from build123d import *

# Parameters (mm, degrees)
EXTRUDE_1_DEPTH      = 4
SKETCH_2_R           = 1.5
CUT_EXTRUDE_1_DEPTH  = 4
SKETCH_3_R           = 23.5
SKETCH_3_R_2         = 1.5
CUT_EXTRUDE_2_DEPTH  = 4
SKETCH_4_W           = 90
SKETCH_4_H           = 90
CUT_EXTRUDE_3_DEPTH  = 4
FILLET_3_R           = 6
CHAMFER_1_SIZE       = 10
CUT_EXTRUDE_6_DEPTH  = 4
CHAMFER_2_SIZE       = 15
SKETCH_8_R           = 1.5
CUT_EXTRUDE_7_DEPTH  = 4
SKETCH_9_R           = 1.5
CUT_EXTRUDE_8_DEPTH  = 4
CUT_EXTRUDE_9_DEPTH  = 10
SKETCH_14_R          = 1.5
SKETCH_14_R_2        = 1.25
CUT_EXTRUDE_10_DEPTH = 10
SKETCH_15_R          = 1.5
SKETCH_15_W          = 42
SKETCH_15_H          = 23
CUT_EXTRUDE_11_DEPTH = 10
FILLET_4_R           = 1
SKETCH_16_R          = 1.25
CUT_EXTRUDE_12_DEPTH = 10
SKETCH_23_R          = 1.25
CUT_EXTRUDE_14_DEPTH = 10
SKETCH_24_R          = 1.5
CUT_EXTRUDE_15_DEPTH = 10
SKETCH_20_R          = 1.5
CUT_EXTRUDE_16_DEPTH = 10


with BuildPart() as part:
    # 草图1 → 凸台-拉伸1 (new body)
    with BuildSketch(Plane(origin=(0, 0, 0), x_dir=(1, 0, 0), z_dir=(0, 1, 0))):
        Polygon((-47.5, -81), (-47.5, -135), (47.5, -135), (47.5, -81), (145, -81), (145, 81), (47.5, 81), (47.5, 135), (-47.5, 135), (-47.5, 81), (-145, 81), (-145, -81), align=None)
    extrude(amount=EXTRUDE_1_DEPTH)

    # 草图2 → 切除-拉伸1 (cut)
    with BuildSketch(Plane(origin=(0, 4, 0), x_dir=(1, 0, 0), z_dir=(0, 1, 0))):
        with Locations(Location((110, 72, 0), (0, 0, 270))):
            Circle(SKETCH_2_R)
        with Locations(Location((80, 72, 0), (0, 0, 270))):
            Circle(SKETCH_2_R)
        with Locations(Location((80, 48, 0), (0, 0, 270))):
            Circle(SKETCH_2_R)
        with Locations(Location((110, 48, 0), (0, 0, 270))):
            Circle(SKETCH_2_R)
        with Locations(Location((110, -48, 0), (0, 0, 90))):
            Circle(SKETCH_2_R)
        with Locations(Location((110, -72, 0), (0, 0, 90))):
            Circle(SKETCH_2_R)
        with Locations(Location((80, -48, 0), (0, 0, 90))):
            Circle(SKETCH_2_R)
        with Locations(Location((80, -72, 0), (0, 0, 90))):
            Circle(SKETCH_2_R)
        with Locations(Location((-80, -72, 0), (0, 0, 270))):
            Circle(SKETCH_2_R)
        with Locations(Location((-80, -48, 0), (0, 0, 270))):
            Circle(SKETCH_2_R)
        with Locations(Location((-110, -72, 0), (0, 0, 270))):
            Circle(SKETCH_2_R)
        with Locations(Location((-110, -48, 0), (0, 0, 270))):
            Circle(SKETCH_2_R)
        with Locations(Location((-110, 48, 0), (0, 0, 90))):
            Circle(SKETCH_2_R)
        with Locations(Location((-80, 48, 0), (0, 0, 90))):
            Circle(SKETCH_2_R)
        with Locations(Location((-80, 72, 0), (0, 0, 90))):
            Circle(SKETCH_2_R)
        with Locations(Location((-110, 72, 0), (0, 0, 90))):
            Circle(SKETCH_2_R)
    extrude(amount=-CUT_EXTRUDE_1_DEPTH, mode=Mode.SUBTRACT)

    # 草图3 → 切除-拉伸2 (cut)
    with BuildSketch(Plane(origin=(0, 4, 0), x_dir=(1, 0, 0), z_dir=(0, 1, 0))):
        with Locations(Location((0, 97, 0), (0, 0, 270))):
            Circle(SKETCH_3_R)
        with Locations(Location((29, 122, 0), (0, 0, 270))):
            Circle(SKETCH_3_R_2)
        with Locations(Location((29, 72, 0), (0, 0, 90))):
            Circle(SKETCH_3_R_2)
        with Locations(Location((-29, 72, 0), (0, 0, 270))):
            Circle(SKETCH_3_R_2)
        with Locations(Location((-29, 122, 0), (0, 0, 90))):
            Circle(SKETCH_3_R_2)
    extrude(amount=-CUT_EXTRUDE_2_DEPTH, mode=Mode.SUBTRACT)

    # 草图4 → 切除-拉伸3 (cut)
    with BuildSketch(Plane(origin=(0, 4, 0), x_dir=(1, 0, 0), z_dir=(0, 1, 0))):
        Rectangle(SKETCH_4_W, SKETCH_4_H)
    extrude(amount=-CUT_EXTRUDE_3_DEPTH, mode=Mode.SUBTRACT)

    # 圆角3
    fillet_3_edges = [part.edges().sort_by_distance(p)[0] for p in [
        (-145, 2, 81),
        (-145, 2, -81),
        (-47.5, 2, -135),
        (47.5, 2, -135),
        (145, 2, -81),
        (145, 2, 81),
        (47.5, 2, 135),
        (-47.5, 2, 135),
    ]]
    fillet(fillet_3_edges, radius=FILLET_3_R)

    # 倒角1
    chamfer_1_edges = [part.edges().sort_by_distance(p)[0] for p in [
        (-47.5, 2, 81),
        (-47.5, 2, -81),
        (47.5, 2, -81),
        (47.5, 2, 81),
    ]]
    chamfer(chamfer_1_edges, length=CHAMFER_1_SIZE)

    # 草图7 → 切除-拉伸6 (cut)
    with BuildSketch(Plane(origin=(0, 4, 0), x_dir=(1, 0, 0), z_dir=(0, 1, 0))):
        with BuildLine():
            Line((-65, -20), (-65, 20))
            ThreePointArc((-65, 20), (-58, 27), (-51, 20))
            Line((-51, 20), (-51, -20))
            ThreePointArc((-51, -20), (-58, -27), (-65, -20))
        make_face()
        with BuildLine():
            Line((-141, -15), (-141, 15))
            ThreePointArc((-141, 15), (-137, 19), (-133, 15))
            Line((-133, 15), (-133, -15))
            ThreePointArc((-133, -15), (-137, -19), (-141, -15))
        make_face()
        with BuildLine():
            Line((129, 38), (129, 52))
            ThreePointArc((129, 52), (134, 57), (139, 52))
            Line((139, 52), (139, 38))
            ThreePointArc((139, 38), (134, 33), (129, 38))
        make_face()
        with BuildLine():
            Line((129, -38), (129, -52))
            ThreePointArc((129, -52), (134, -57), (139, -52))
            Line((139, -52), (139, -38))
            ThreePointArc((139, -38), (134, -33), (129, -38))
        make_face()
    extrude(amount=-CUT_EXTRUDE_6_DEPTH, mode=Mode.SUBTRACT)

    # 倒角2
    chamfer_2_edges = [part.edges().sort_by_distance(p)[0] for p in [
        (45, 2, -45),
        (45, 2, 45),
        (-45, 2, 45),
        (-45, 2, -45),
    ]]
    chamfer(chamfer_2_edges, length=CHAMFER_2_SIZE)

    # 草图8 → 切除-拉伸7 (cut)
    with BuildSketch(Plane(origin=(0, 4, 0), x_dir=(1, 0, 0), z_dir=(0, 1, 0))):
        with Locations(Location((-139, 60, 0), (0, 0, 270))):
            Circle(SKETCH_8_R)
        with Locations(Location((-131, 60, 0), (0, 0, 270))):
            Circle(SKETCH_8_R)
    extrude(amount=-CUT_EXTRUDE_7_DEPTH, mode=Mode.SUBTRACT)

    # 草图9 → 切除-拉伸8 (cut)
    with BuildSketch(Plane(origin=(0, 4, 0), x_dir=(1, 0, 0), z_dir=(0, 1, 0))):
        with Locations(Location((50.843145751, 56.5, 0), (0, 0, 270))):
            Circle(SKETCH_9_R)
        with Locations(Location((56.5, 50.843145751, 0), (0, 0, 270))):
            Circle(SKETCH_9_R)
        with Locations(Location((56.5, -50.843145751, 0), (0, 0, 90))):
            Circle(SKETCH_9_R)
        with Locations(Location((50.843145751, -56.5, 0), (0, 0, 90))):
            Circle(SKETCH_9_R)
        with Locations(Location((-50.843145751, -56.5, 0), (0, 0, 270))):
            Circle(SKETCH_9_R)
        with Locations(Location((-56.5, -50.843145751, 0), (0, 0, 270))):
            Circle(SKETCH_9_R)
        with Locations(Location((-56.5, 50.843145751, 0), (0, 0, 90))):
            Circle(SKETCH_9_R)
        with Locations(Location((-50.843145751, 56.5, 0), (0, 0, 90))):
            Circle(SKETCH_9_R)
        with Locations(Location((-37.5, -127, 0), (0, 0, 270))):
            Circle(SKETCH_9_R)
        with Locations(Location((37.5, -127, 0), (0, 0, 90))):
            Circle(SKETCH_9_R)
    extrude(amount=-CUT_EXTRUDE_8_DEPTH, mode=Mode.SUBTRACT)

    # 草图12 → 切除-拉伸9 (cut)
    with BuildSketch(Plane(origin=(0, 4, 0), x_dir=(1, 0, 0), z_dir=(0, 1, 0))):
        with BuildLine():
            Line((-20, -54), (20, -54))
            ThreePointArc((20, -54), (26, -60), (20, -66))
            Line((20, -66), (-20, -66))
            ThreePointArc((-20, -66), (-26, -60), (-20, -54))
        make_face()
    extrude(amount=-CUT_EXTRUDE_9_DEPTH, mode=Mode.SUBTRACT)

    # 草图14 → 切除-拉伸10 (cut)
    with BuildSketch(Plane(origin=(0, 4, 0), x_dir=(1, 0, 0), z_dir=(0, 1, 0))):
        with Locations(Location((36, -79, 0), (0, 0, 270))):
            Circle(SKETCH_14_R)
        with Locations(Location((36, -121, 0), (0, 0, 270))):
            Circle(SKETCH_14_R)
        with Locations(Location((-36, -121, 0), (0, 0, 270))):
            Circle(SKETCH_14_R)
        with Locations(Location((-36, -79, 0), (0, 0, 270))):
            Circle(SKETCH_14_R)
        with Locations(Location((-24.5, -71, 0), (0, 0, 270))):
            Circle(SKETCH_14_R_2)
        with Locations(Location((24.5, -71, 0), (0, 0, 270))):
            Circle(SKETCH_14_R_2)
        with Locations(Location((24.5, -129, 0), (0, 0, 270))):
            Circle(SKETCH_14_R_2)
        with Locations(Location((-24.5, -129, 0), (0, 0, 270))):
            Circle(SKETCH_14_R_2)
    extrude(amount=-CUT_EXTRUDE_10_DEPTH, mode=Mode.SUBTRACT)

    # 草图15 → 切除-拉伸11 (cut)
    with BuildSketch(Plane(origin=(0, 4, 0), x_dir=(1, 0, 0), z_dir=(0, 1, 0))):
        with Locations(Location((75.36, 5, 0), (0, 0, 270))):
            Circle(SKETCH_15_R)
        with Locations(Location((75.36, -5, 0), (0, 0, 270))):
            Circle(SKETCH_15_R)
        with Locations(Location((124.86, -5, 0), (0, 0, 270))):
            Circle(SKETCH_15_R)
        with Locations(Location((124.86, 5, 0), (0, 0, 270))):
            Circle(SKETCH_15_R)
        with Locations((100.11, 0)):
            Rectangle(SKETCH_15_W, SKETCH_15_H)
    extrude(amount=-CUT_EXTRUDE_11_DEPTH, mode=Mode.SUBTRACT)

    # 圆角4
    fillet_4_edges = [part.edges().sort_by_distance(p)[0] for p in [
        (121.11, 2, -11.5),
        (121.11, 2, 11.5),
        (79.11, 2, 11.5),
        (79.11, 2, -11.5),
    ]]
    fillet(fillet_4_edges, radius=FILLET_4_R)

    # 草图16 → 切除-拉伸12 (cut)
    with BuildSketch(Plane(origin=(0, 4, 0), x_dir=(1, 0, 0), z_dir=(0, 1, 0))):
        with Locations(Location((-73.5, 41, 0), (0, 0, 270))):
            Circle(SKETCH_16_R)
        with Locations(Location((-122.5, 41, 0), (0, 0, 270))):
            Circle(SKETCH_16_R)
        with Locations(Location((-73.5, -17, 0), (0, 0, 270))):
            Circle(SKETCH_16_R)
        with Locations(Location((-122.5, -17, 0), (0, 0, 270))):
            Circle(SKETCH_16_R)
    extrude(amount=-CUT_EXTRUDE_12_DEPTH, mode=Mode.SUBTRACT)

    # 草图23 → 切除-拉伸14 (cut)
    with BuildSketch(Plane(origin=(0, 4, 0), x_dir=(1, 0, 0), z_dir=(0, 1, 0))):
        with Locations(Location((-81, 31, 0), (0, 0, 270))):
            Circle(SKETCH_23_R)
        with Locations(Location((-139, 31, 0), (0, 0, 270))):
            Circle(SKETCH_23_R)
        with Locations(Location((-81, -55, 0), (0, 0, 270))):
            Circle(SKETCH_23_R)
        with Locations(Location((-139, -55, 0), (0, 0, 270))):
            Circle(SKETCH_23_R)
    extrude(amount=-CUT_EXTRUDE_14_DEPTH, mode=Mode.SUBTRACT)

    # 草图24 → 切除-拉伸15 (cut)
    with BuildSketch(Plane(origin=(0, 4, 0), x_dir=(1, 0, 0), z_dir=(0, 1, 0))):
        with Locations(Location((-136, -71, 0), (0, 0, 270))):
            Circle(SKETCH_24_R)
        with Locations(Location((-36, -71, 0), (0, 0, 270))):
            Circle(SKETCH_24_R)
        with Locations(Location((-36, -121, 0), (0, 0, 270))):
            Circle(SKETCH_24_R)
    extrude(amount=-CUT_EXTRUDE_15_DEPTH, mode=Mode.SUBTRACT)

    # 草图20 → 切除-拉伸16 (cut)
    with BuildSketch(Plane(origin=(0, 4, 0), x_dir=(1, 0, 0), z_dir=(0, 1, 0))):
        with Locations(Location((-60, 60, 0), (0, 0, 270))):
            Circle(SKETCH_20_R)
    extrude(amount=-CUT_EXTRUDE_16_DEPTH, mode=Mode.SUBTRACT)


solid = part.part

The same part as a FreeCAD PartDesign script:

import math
import FreeCAD as App
import Part
import Sketcher

V = App.Vector
Q = App.Units.Quantity


def edges_at(feature, points):
    """Names of the edges that pass closest to the given points."""
    edges = feature.Shape.Edges
    near = lambda p: min(range(len(edges)), key=lambda i: edges[i].distToShape(Part.Vertex(*p))[0])
    return sorted({f"Edge{near(p) + 1}" for p in points})


def add_polygon(sketch, points):
    """Adds a closed chain of lines whose ends are joined by coincident constraints."""
    first, n = sketch.GeometryCount, len(points)
    for a, b in zip(points, points[1:] + points[:1]):
        sketch.addGeometry(Part.LineSegment(App.Vector(*a, 0), App.Vector(*b, 0)), False)
    for i in range(n):
        sketch.addConstraint(Sketcher.Constraint("Coincident", first + i, 2, first + (i + 1) % n, 1))

doc = App.newDocument("Part")
body = doc.addObject("PartDesign::Body", "Body")

sketch1 = doc.addObject("Sketcher::SketchObject", "Sketch")
body.addObject(sketch1)
sketch1.AttachmentSupport = (doc.XZ_Plane, [""])
sketch1.MapMode = "FlatFace"
add_polygon(sketch1, [(-47.5, 81), (-47.5, 135), (47.5, 135), (47.5, 81), (145, 81), (145, -81), (47.5, -81), (47.5, -135), (-47.5, -135), (-47.5, -81), (-145, -81), (-145, 81)])
sketch1.addConstraint([
    Sketcher.Constraint("Vertical", 0),
    Sketcher.Constraint("Horizontal", 1),
    Sketcher.Constraint("Vertical", 2),
    Sketcher.Constraint("Horizontal", 3),
    Sketcher.Constraint("Vertical", 4),
    Sketcher.Constraint("Horizontal", 5),
    Sketcher.Constraint("Vertical", 6),
    Sketcher.Constraint("Horizontal", 7),
    Sketcher.Constraint("Vertical", 8),
    Sketcher.Constraint("Horizontal", 9),
    Sketcher.Constraint("Vertical", 10),
    Sketcher.Constraint("Horizontal", 11),
    Sketcher.Constraint("Symmetric", 0, 2, 6, 2, -1, 1),
    Sketcher.Constraint("Symmetric", 2, 2, 8, 2, -1, 1),
    Sketcher.Constraint("Symmetric", 4, 2, 10, 2, -1, 1),
    Sketcher.Constraint("Symmetric", 5, 2, 8, 2, -2),
    Sketcher.Constraint("DistanceX", 1, 1, 1, 2, Q("95 mm")),
    Sketcher.Constraint("DistanceY", 0, 1, 0, 2, Q("54 mm")),
    Sketcher.Constraint("DistanceY", 4, 2, 4, 1, Q("162 mm")),
    Sketcher.Constraint("DistanceX", 3, 1, 3, 2, Q("97.5 mm")),
])
pad1 = doc.addObject("PartDesign::Pad", "Pad")
body.addObject(pad1)
pad1.Profile = sketch1
pad1.Length = 4
pad1.Reversed = True

sketch2 = doc.addObject("Sketcher::SketchObject", "Sketch001")
body.addObject(sketch2)
sketch2.AttachmentSupport = (doc.XZ_Plane, [""])
sketch2.MapMode = "FlatFace"
sketch2.AttachmentOffset = App.Placement(V(0, 0, -4), App.Rotation())
sketch2.addGeometry([
    Part.Circle(V(110, -72, 0), V(0, 0, 1), 1.5),
    Part.Circle(V(80, -72, 0), V(0, 0, 1), 1.5),
    Part.Circle(V(80, -48, 0), V(0, 0, 1), 1.5),
    Part.Circle(V(110, -48, 0), V(0, 0, 1), 1.5),
    Part.Circle(V(110, 48, 0), V(0, 0, 1), 1.5),
    Part.Circle(V(110, 72, 0), V(0, 0, 1), 1.5),
    Part.Circle(V(80, 48, 0), V(0, 0, 1), 1.5),
    Part.Circle(V(80, 72, 0), V(0, 0, 1), 1.5),
    Part.Circle(V(-80, 72, 0), V(0, 0, 1), 1.5),
    Part.Circle(V(-80, 48, 0), V(0, 0, 1), 1.5),
    Part.Circle(V(-110, 72, 0), V(0, 0, 1), 1.5),
    Part.Circle(V(-110, 48, 0), V(0, 0, 1), 1.5),
    Part.Circle(V(-110, -48, 0), V(0, 0, 1), 1.5),
    Part.Circle(V(-80, -48, 0), V(0, 0, 1), 1.5),
    Part.Circle(V(-80, -72, 0), V(0, 0, 1), 1.5),
    Part.Circle(V(-110, -72, 0), V(0, 0, 1), 1.5),
], False)
sketch2.addConstraint([
    Sketcher.Constraint("Equal", 0, 1),
    Sketcher.Constraint("Equal", 1, 2),
    Sketcher.Constraint("Equal", 2, 3),
    Sketcher.Constraint("Equal", 3, 4),
    Sketcher.Constraint("Equal", 4, 5),
    Sketcher.Constraint("Equal", 5, 6),
    Sketcher.Constraint("Equal", 6, 7),
    Sketcher.Constraint("Equal", 7, 8),
    Sketcher.Constraint("Equal", 8, 9),
    Sketcher.Constraint("Equal", 9, 10),
    Sketcher.Constraint("Equal", 10, 11),
    Sketcher.Constraint("Equal", 11, 12),
    Sketcher.Constraint("Equal", 12, 13),
    Sketcher.Constraint("Equal", 13, 14),
    Sketcher.Constraint("Equal", 14, 15),
    Sketcher.Constraint("Symmetric", 1, 3, 8, 3, -1, 1),
    Sketcher.Constraint("Symmetric", 2, 3, 9, 3, -1, 1),
    Sketcher.Constraint("Symmetric", 0, 3, 10, 3, -1, 1),
    Sketcher.Constraint("Symmetric", 3, 3, 11, 3, -1, 1),
    Sketcher.Constraint("Symmetric", 4, 3, 12, 3, -1, 1),
    Sketcher.Constraint("Symmetric", 6, 3, 13, 3, -1, 1),
    Sketcher.Constraint("Symmetric", 7, 3, 14, 3, -1, 1),
    Sketcher.Constraint("Symmetric", 5, 3, 15, 3, -1, 1),
    Sketcher.Constraint("Symmetric", 7, 3, 8, 3, -2),
    Sketcher.Constraint("Symmetric", 6, 3, 9, 3, -2),
    Sketcher.Constraint("Symmetric", 5, 3, 10, 3, -2),
    Sketcher.Constraint("Symmetric", 4, 3, 11, 3, -2),
    Sketcher.Constraint("Horizontal", 0, 3, 1, 3),
    Sketcher.Constraint("Horizontal", 2, 3, 3, 3),
    Sketcher.Constraint("Vertical", 1, 3, 2, 3),
    Sketcher.Constraint("Vertical", 0, 3, 3, 3),
    Sketcher.Constraint("Diameter", 0, Q("3 mm")),
    Sketcher.Constraint("DistanceX", -1, 1, 0, 3, Q("110 mm")),
    Sketcher.Constraint("DistanceY", 0, 3, -1, 1, Q("72 mm")),
    Sketcher.Constraint("DistanceX", -1, 1, 1, 3, Q("80 mm")),
    Sketcher.Constraint("DistanceY", 2, 3, -1, 1, Q("48 mm")),
])
pocket1 = doc.addObject("PartDesign::Pocket", "Pocket")
body.addObject(pocket1)
pocket1.Profile = sketch2
pocket1.Length = 4
pocket1.Reversed = True

sketch3 = doc.addObject("Sketcher::SketchObject", "Sketch002")
body.addObject(sketch3)
sketch3.AttachmentSupport = (doc.XZ_Plane, [""])
sketch3.MapMode = "FlatFace"
sketch3.AttachmentOffset = App.Placement(V(0, 0, -4), App.Rotation())
sketch3.addGeometry([
    Part.Circle(V(0, -97, 0), V(0, 0, 1), 23.5),
    Part.Circle(V(29, -122, 0), V(0, 0, 1), 1.5),
    Part.Circle(V(29, -72, 0), V(0, 0, 1), 1.5),
    Part.Circle(V(-29, -72, 0), V(0, 0, 1), 1.5),
    Part.Circle(V(-29, -122, 0), V(0, 0, 1), 1.5),
], False)
sketch3.addConstraint([
    Sketcher.Constraint("Equal", 1, 2),
    Sketcher.Constraint("Equal", 2, 3),
    Sketcher.Constraint("Equal", 3, 4),
    Sketcher.Constraint("Symmetric", 2, 3, 3, 3, -2),
    Sketcher.Constraint("Symmetric", 1, 3, 4, 3, -2),
    Sketcher.Constraint("PointOnObject", 0, 3, -2),
    Sketcher.Constraint("Vertical", 1, 3, 2, 3),
    Sketcher.Constraint("Diameter", 0, Q("47 mm")),
    Sketcher.Constraint("Diameter", 1, Q("3 mm")),
    Sketcher.Constraint("DistanceY", 0, 3, -1, 1, Q("97 mm")),
    Sketcher.Constraint("DistanceX", -1, 1, 1, 3, Q("29 mm")),
    Sketcher.Constraint("DistanceY", 1, 3, -1, 1, Q("122 mm")),
    Sketcher.Constraint("DistanceY", 2, 3, -1, 1, Q("72 mm")),
])
pocket2 = doc.addObject("PartDesign::Pocket", "Pocket001")
body.addObject(pocket2)
pocket2.Profile = sketch3
pocket2.Length = 4
pocket2.Reversed = True

sketch4 = doc.addObject("Sketcher::SketchObject", "Sketch003")
body.addObject(sketch4)
sketch4.AttachmentSupport = (doc.XZ_Plane, [""])
sketch4.MapMode = "FlatFace"
sketch4.AttachmentOffset = App.Placement(V(0, 0, -4), App.Rotation())
add_polygon(sketch4, [(-45, -45), (-45, 45), (45, 45), (45, -45)])
sketch4.addConstraint([
    Sketcher.Constraint("Vertical", 0),
    Sketcher.Constraint("Horizontal", 1),
    Sketcher.Constraint("Vertical", 2),
    Sketcher.Constraint("Horizontal", 3),
    Sketcher.Constraint("Symmetric", 0, 2, 2, 2, -1, 1),
    Sketcher.Constraint("Equal", 3, 0),
    Sketcher.Constraint("DistanceX", 1, 1, 1, 2, Q("90 mm")),
])
pocket3 = doc.addObject("PartDesign::Pocket", "Pocket002")
body.addObject(pocket3)
pocket3.Profile = sketch4
pocket3.Length = 4
pocket3.Reversed = True
doc.recompute()

fillet = doc.addObject("PartDesign::Fillet", "Fillet")
body.addObject(fillet)
fillet.Base = (pocket3, edges_at(pocket3, [
    (-145, 2, 81),
    (-145, 2, -81),
    (-47.5, 2, -135),
    (47.5, 2, -135),
    (145, 2, -81),
    (145, 2, 81),
    (47.5, 2, 135),
    (-47.5, 2, 135),
]))
fillet.Radius = 6
doc.recompute()

chamfer = doc.addObject("PartDesign::Chamfer", "Chamfer")
body.addObject(chamfer)
chamfer.Base = (fillet, edges_at(fillet, [
    (-47.5, 2, 81),
    (-47.5, 2, -81),
    (47.5, 2, -81),
    (47.5, 2, 81),
]))
chamfer.Size = 10

sketch5 = doc.addObject("Sketcher::SketchObject", "Sketch004")
body.addObject(sketch5)
sketch5.AttachmentSupport = (doc.XZ_Plane, [""])
sketch5.MapMode = "FlatFace"
sketch5.AttachmentOffset = App.Placement(V(0, 0, -4), App.Rotation())
sketch5.addGeometry([
    Part.LineSegment(V(-65, -20, 0), V(-65, 20, 0)),
    Part.ArcOfCircle(Part.Circle(V(-58, 20, 0), V(0, 0, 1), 7), math.radians(0), math.radians(180)),
    Part.LineSegment(V(-51, 20, 0), V(-51, -20, 0)),
    Part.ArcOfCircle(Part.Circle(V(-58, -20, 0), V(0, 0, 1), 7), math.radians(180), math.radians(360)),
    Part.LineSegment(V(-141, -15, 0), V(-141, 15, 0)),
    Part.ArcOfCircle(Part.Circle(V(-137, 15, 0), V(0, 0, 1), 4), math.radians(0), math.radians(180)),
    Part.LineSegment(V(-133, 15, 0), V(-133, -15, 0)),
    Part.ArcOfCircle(Part.Circle(V(-137, -15, 0), V(0, 0, 1), 4), math.radians(180), math.radians(360)),
    Part.LineSegment(V(129, -52, 0), V(129, -38, 0)),
    Part.ArcOfCircle(Part.Circle(V(134, -38, 0), V(0, 0, 1), 5), math.radians(0), math.radians(180)),
    Part.LineSegment(V(139, -38, 0), V(139, -52, 0)),
    Part.ArcOfCircle(Part.Circle(V(134, -52, 0), V(0, 0, 1), 5), math.radians(180), math.radians(360)),
    Part.LineSegment(V(129, 38, 0), V(129, 52, 0)),
    Part.ArcOfCircle(Part.Circle(V(134, 52, 0), V(0, 0, 1), 5), math.radians(0), math.radians(180)),
    Part.LineSegment(V(139, 52, 0), V(139, 38, 0)),
    Part.ArcOfCircle(Part.Circle(V(134, 38, 0), V(0, 0, 1), 5), math.radians(180), math.radians(360)),
], False)
sketch5.addConstraint([
    Sketcher.Constraint("Tangent", 0, 2, 1, 2),
    Sketcher.Constraint("Tangent", 1, 1, 2, 1),
    Sketcher.Constraint("Tangent", 2, 2, 3, 2),
    Sketcher.Constraint("Tangent", 3, 1, 0, 1),
    Sketcher.Constraint("Tangent", 4, 2, 5, 2),
    Sketcher.Constraint("Tangent", 5, 1, 6, 1),
    Sketcher.Constraint("Tangent", 6, 2, 7, 2),
    Sketcher.Constraint("Tangent", 7, 1, 4, 1),
    Sketcher.Constraint("Tangent", 8, 2, 9, 2),
    Sketcher.Constraint("Tangent", 9, 1, 10, 1),
    Sketcher.Constraint("Tangent", 10, 2, 11, 2),
    Sketcher.Constraint("Tangent", 11, 1, 8, 1),
    Sketcher.Constraint("Tangent", 12, 2, 13, 2),
    Sketcher.Constraint("Tangent", 13, 1, 14, 1),
    Sketcher.Constraint("Tangent", 14, 2, 15, 2),
    Sketcher.Constraint("Tangent", 15, 1, 12, 1),
    Sketcher.Constraint("Vertical", 0),
    Sketcher.Constraint("Vertical", 2),
    Sketcher.Constraint("Vertical", 4),
    Sketcher.Constraint("Vertical", 6),
    Sketcher.Constraint("Vertical", 8),
    Sketcher.Constraint("Vertical", 10),
    Sketcher.Constraint("Vertical", 12),
    Sketcher.Constraint("Vertical", 14),
    Sketcher.Constraint("Equal", 11, 13),
    Sketcher.Constraint("Symmetric", 11, 3, 13, 3, -1),
    Sketcher.Constraint("Equal", 10, 12),
    Sketcher.Constraint("Radius", 1, Q("7 mm")),
    Sketcher.Constraint("Radius", 5, Q("4 mm")),
    Sketcher.Constraint("Radius", 9, Q("5 mm")),
    Sketcher.Constraint("DistanceY", 0, 1, 0, 2, Q("40 mm")),
    Sketcher.Constraint("DistanceY", 4, 1, 4, 2, Q("30 mm")),
    Sketcher.Constraint("DistanceY", 8, 1, 8, 2, Q("14 mm")),
    Sketcher.Constraint("DistanceX", 1, 3, -1, 1, Q("58 mm")),
    Sketcher.Constraint("DistanceY", -1, 1, 1, 3, Q("20 mm")),
    Sketcher.Constraint("DistanceX", 5, 3, -1, 1, Q("137 mm")),
    Sketcher.Constraint("DistanceY", -1, 1, 5, 3, Q("15 mm")),
    Sketcher.Constraint("DistanceX", -1, 1, 9, 3, Q("134 mm")),
    Sketcher.Constraint("DistanceY", 9, 3, -1, 1, Q("38 mm")),
])
pocket4 = doc.addObject("PartDesign::Pocket", "Pocket003")
body.addObject(pocket4)
pocket4.Profile = sketch5
pocket4.Length = 4
pocket4.Reversed = True
doc.recompute()

chamfer2 = doc.addObject("PartDesign::Chamfer", "Chamfer001")
body.addObject(chamfer2)
chamfer2.Base = (pocket4, edges_at(pocket4, [
    (45, 2, -45),
    (45, 2, 45),
    (-45, 2, 45),
    (-45, 2, -45),
]))
chamfer2.Size = 15

sketch6 = doc.addObject("Sketcher::SketchObject", "Sketch005")
body.addObject(sketch6)
sketch6.AttachmentSupport = (doc.XZ_Plane, [""])
sketch6.MapMode = "FlatFace"
sketch6.AttachmentOffset = App.Placement(V(0, 0, -4), App.Rotation())
sketch6.addGeometry([
    Part.Circle(V(-139, -60, 0), V(0, 0, 1), 1.5),
    Part.Circle(V(-131, -60, 0), V(0, 0, 1), 1.5),
], False)
sketch6.addConstraint([
    Sketcher.Constraint("Equal", 0, 1),
    Sketcher.Constraint("Horizontal", 0, 3, 1, 3),
    Sketcher.Constraint("Diameter", 0, Q("3 mm")),
    Sketcher.Constraint("DistanceX", 0, 3, -1, 1, Q("139 mm")),
    Sketcher.Constraint("DistanceY", 0, 3, -1, 1, Q("60 mm")),
    Sketcher.Constraint("DistanceX", 1, 3, -1, 1, Q("131 mm")),
])
pocket5 = doc.addObject("PartDesign::Pocket", "Pocket004")
body.addObject(pocket5)
pocket5.Profile = sketch6
pocket5.Length = 4
pocket5.Reversed = True

sketch7 = doc.addObject("Sketcher::SketchObject", "Sketch006")
body.addObject(sketch7)
sketch7.AttachmentSupport = (doc.XZ_Plane, [""])
sketch7.MapMode = "FlatFace"
sketch7.AttachmentOffset = App.Placement(V(0, 0, -4), App.Rotation())
sketch7.addGeometry([
    Part.Circle(V(50.843146, -56.5, 0), V(0, 0, 1), 1.5),
    Part.Circle(V(56.5, -50.843146, 0), V(0, 0, 1), 1.5),
    Part.Circle(V(56.5, 50.843146, 0), V(0, 0, 1), 1.5),
    Part.Circle(V(50.843146, 56.5, 0), V(0, 0, 1), 1.5),
    Part.Circle(V(-50.843146, 56.5, 0), V(0, 0, 1), 1.5),
    Part.Circle(V(-56.5, 50.843146, 0), V(0, 0, 1), 1.5),
    Part.Circle(V(-56.5, -50.843146, 0), V(0, 0, 1), 1.5),
    Part.Circle(V(-50.843146, -56.5, 0), V(0, 0, 1), 1.5),
    Part.Circle(V(-37.5, 127, 0), V(0, 0, 1), 1.5),
    Part.Circle(V(37.5, 127, 0), V(0, 0, 1), 1.5),
], False)
sketch7.addConstraint([
    Sketcher.Constraint("Equal", 0, 1),
    Sketcher.Constraint("Equal", 1, 2),
    Sketcher.Constraint("Equal", 2, 3),
    Sketcher.Constraint("Equal", 3, 4),
    Sketcher.Constraint("Equal", 4, 5),
    Sketcher.Constraint("Equal", 5, 6),
    Sketcher.Constraint("Equal", 6, 7),
    Sketcher.Constraint("Equal", 7, 8),
    Sketcher.Constraint("Equal", 8, 9),
    Sketcher.Constraint("Symmetric", 0, 3, 4, 3, -1, 1),
    Sketcher.Constraint("Symmetric", 1, 3, 5, 3, -1, 1),
    Sketcher.Constraint("Symmetric", 2, 3, 6, 3, -1, 1),
    Sketcher.Constraint("Symmetric", 3, 3, 7, 3, -1, 1),
    Sketcher.Constraint("Symmetric", 3, 3, 4, 3, -2),
    Sketcher.Constraint("Symmetric", 2, 3, 5, 3, -2),
    Sketcher.Constraint("Symmetric", 8, 3, 9, 3, -2),
    Sketcher.Constraint("Diameter", 0, Q("3 mm")),
    Sketcher.Constraint("DistanceY", -1, 1, 8, 3, Q("127 mm")),
    Sketcher.Constraint("DistanceY", 0, 3, 3, 3, Q("113 mm")),
    Sketcher.Constraint("DistanceX", 5, 3, 2, 3, Q("113 mm")),
    Sketcher.Constraint("DistanceX", 5, 3, 8, 3, Q("19 mm")),
    Sketcher.Constraint("DistanceY", 1, 3, 2, 3, Q("101.686292 mm")),
    Sketcher.Constraint("DistanceX", 4, 3, 3, 3, Q("101.686292 mm")),
])
pocket6 = doc.addObject("PartDesign::Pocket", "Pocket005")
body.addObject(pocket6)
pocket6.Profile = sketch7
pocket6.Length = 4
pocket6.Reversed = True

sketch8 = doc.addObject("Sketcher::SketchObject", "Sketch007")
body.addObject(sketch8)
sketch8.AttachmentSupport = (doc.XZ_Plane, [""])
sketch8.MapMode = "FlatFace"
sketch8.AttachmentOffset = App.Placement(V(0, 0, -4), App.Rotation())
sketch8.addGeometry([
    Part.LineSegment(V(20, 54, 0), V(-20, 54, 0)),
    Part.ArcOfCircle(Part.Circle(V(-20, 60, 0), V(0, 0, 1), 6), math.radians(90), math.radians(270)),
    Part.LineSegment(V(-20, 66, 0), V(20, 66, 0)),
    Part.ArcOfCircle(Part.Circle(V(20, 60, 0), V(0, 0, 1), 6), math.radians(-90), math.radians(90)),
], False)
sketch8.addConstraint([
    Sketcher.Constraint("Tangent", 0, 2, 1, 2),
    Sketcher.Constraint("Tangent", 1, 1, 2, 1),
    Sketcher.Constraint("Tangent", 2, 2, 3, 2),
    Sketcher.Constraint("Tangent", 3, 1, 0, 1),
    Sketcher.Constraint("Horizontal", 0),
    Sketcher.Constraint("Horizontal", 2),
    Sketcher.Constraint("Radius", 1, Q("6 mm")),
    Sketcher.Constraint("DistanceX", 0, 2, 0, 1, Q("40 mm")),
    Sketcher.Constraint("DistanceX", 1, 3, -1, 1, Q("20 mm")),
    Sketcher.Constraint("DistanceY", -1, 1, 1, 3, Q("60 mm")),
])
pocket7 = doc.addObject("PartDesign::Pocket", "Pocket006")
body.addObject(pocket7)
pocket7.Profile = sketch8
pocket7.Length = 10
pocket7.Reversed = True

sketch9 = doc.addObject("Sketcher::SketchObject", "Sketch008")
body.addObject(sketch9)
sketch9.AttachmentSupport = (doc.XZ_Plane, [""])
sketch9.MapMode = "FlatFace"
sketch9.AttachmentOffset = App.Placement(V(0, 0, -4), App.Rotation())
sketch9.addGeometry([
    Part.Circle(V(36, 79, 0), V(0, 0, 1), 1.5),
    Part.Circle(V(36, 121, 0), V(0, 0, 1), 1.5),
    Part.Circle(V(-36, 121, 0), V(0, 0, 1), 1.5),
    Part.Circle(V(-36, 79, 0), V(0, 0, 1), 1.5),
    Part.Circle(V(-24.5, 71, 0), V(0, 0, 1), 1.25),
    Part.Circle(V(24.5, 71, 0), V(0, 0, 1), 1.25),
    Part.Circle(V(24.5, 129, 0), V(0, 0, 1), 1.25),
    Part.Circle(V(-24.5, 129, 0), V(0, 0, 1), 1.25),
], False)
sketch9.addConstraint([
    Sketcher.Constraint("Equal", 0, 1),
    Sketcher.Constraint("Equal", 1, 2),
    Sketcher.Constraint("Equal", 2, 3),
    Sketcher.Constraint("Equal", 4, 5),
    Sketcher.Constraint("Equal", 5, 6),
    Sketcher.Constraint("Equal", 6, 7),
    Sketcher.Constraint("Symmetric", 1, 3, 2, 3, -2),
    Sketcher.Constraint("Symmetric", 0, 3, 3, 3, -2),
    Sketcher.Constraint("Symmetric", 4, 3, 5, 3, -2),
    Sketcher.Constraint("Symmetric", 6, 3, 7, 3, -2),
    Sketcher.Constraint("Vertical", 0, 3, 1, 3),
    Sketcher.Constraint("Vertical", 5, 3, 6, 3),
    Sketcher.Constraint("Diameter", 0, Q("3 mm")),
    Sketcher.Constraint("Diameter", 4, Q("2.5 mm")),
    Sketcher.Constraint("DistanceX", -1, 1, 0, 3, Q("36 mm")),
    Sketcher.Constraint("DistanceY", -1, 1, 0, 3, Q("79 mm")),
    Sketcher.Constraint("DistanceY", -1, 1, 1, 3, Q("121 mm")),
    Sketcher.Constraint("DistanceY", -1, 1, 4, 3, Q("71 mm")),
    Sketcher.Constraint("DistanceY", -1, 1, 6, 3, Q("129 mm")),
    Sketcher.Constraint("DistanceX", 4, 3, 5, 3, Q("49 mm")),
])
pocket8 = doc.addObject("PartDesign::Pocket", "Pocket007")
body.addObject(pocket8)
pocket8.Profile = sketch9
pocket8.Length = 10
pocket8.Reversed = True

sketch10 = doc.addObject("Sketcher::SketchObject", "Sketch009")
body.addObject(sketch10)
sketch10.AttachmentSupport = (doc.XZ_Plane, [""])
sketch10.MapMode = "FlatFace"
sketch10.AttachmentOffset = App.Placement(V(0, 0, -4), App.Rotation())
sketch10.addGeometry(Part.Circle(V(75.36, -5, 0), V(0, 0, 1), 1.5), False)
sketch10.addGeometry(Part.Circle(V(75.36, 5, 0), V(0, 0, 1), 1.5), False)
sketch10.addGeometry(Part.Circle(V(124.86, 5, 0), V(0, 0, 1), 1.5), False)
sketch10.addGeometry(Part.Circle(V(124.86, -5, 0), V(0, 0, 1), 1.5), False)
add_polygon(sketch10, [(79.11, -11.5), (79.11, 11.5), (121.11, 11.5), (121.11, -11.5)])
sketch10.addConstraint([
    Sketcher.Constraint("Vertical", 4),
    Sketcher.Constraint("Horizontal", 5),
    Sketcher.Constraint("Vertical", 6),
    Sketcher.Constraint("Horizontal", 7),
    Sketcher.Constraint("Equal", 0, 1),
    Sketcher.Constraint("Equal", 1, 2),
    Sketcher.Constraint("Equal", 2, 3),
    Sketcher.Constraint("Symmetric", 0, 3, 1, 3, -1),
    Sketcher.Constraint("Symmetric", 2, 3, 3, 3, -1),
    Sketcher.Constraint("Horizontal", 1, 3, 2, 3),
    Sketcher.Constraint("Diameter", 0, Q("3 mm")),
    Sketcher.Constraint("DistanceX", 5, 1, 5, 2, Q("42 mm")),
    Sketcher.Constraint("DistanceY", 4, 1, 4, 2, Q("23 mm")),
    Sketcher.Constraint("DistanceY", 0, 3, -1, 1, Q("5 mm")),
    Sketcher.Constraint("DistanceY", -1, 1, 4, 2, Q("11.5 mm")),
    Sketcher.Constraint("DistanceX", 1, 3, 2, 3, Q("49.5 mm")),
    Sketcher.Constraint("DistanceX", -1, 1, 0, 3, Q("75.36 mm")),
    Sketcher.Constraint("DistanceX", -1, 1, 4, 2, Q("79.11 mm")),
])
pocket9 = doc.addObject("PartDesign::Pocket", "Pocket008")
body.addObject(pocket9)
pocket9.Profile = sketch10
pocket9.Length = 10
pocket9.Reversed = True
doc.recompute()

fillet2 = doc.addObject("PartDesign::Fillet", "Fillet001")
body.addObject(fillet2)
fillet2.Base = (pocket9, edges_at(pocket9, [
    (121.11, 2, -11.5),
    (121.11, 2, 11.5),
    (79.11, 2, 11.5),
    (79.11, 2, -11.5),
]))
fillet2.Radius = 1

sketch11 = doc.addObject("Sketcher::SketchObject", "Sketch010")
body.addObject(sketch11)
sketch11.AttachmentSupport = (doc.XZ_Plane, [""])
sketch11.MapMode = "FlatFace"
sketch11.AttachmentOffset = App.Placement(V(0, 0, -4), App.Rotation())
sketch11.addGeometry([
    Part.Circle(V(-73.5, -41, 0), V(0, 0, 1), 1.25),
    Part.Circle(V(-122.5, -41, 0), V(0, 0, 1), 1.25),
    Part.Circle(V(-73.5, 17, 0), V(0, 0, 1), 1.25),
    Part.Circle(V(-122.5, 17, 0), V(0, 0, 1), 1.25),
], False)
sketch11.addConstraint([
    Sketcher.Constraint("Equal", 0, 1),
    Sketcher.Constraint("Equal", 1, 2),
    Sketcher.Constraint("Equal", 2, 3),
    Sketcher.Constraint("Horizontal", 0, 3, 1, 3),
    Sketcher.Constraint("Horizontal", 2, 3, 3, 3),
    Sketcher.Constraint("Vertical", 0, 3, 2, 3),
    Sketcher.Constraint("Vertical", 1, 3, 3, 3),
    Sketcher.Constraint("Diameter", 0, Q("2.5 mm")),
    Sketcher.Constraint("DistanceY", 0, 3, -1, 1, Q("41 mm")),
    Sketcher.Constraint("DistanceY", -1, 1, 2, 3, Q("17 mm")),
    Sketcher.Constraint("DistanceX", 1, 3, 0, 3, Q("49 mm")),
    Sketcher.Constraint("DistanceX", 0, 3, -1, 1, Q("73.5 mm")),
])
pocket10 = doc.addObject("PartDesign::Pocket", "Pocket009")
body.addObject(pocket10)
pocket10.Profile = sketch11
pocket10.Length = 10
pocket10.Reversed = True

sketch12 = doc.addObject("Sketcher::SketchObject", "Sketch011")
body.addObject(sketch12)
sketch12.AttachmentSupport = (doc.XZ_Plane, [""])
sketch12.MapMode = "FlatFace"
sketch12.AttachmentOffset = App.Placement(V(0, 0, -4), App.Rotation())
sketch12.addGeometry([
    Part.Circle(V(-81, -31, 0), V(0, 0, 1), 1.25),
    Part.Circle(V(-139, -31, 0), V(0, 0, 1), 1.25),
    Part.Circle(V(-81, 55, 0), V(0, 0, 1), 1.25),
    Part.Circle(V(-139, 55, 0), V(0, 0, 1), 1.25),
], False)
sketch12.addConstraint([
    Sketcher.Constraint("Equal", 0, 1),
    Sketcher.Constraint("Equal", 1, 2),
    Sketcher.Constraint("Equal", 2, 3),
    Sketcher.Constraint("Horizontal", 0, 3, 1, 3),
    Sketcher.Constraint("Horizontal", 2, 3, 3, 3),
    Sketcher.Constraint("Vertical", 0, 3, 2, 3),
    Sketcher.Constraint("Vertical", 1, 3, 3, 3),
    Sketcher.Constraint("Diameter", 0, Q("2.5 mm")),
    Sketcher.Constraint("DistanceX", 0, 3, -1, 1, Q("81 mm")),
    Sketcher.Constraint("DistanceY", 0, 3, -1, 1, Q("31 mm")),
    Sketcher.Constraint("DistanceX", 1, 3, -1, 1, Q("139 mm")),
    Sketcher.Constraint("DistanceY", -1, 1, 2, 3, Q("55 mm")),
])
pocket11 = doc.addObject("PartDesign::Pocket", "Pocket010")
body.addObject(pocket11)
pocket11.Profile = sketch12
pocket11.Length = 10
pocket11.Reversed = True

sketch13 = doc.addObject("Sketcher::SketchObject", "Sketch012")
body.addObject(sketch13)
sketch13.AttachmentSupport = (doc.XZ_Plane, [""])
sketch13.MapMode = "FlatFace"
sketch13.AttachmentOffset = App.Placement(V(0, 0, -4), App.Rotation())
sketch13.addGeometry([
    Part.Circle(V(-136, 71, 0), V(0, 0, 1), 1.5),
    Part.Circle(V(-36, 71, 0), V(0, 0, 1), 1.5),
    Part.Circle(V(-36, 121, 0), V(0, 0, 1), 1.5),
], False)
sketch13.addConstraint([
    Sketcher.Constraint("Equal", 0, 1),
    Sketcher.Constraint("Equal", 1, 2),
    Sketcher.Constraint("Horizontal", 0, 3, 1, 3),
    Sketcher.Constraint("Vertical", 1, 3, 2, 3),
    Sketcher.Constraint("Diameter", 0, Q("3 mm")),
    Sketcher.Constraint("DistanceX", 0, 3, -1, 1, Q("136 mm")),
    Sketcher.Constraint("DistanceY", -1, 1, 0, 3, Q("71 mm")),
    Sketcher.Constraint("DistanceX", 1, 3, -1, 1, Q("36 mm")),
    Sketcher.Constraint("DistanceY", -1, 1, 2, 3, Q("121 mm")),
])
pocket12 = doc.addObject("PartDesign::Pocket", "Pocket011")
body.addObject(pocket12)
pocket12.Profile = sketch13
pocket12.Length = 10
pocket12.Reversed = True

sketch14 = doc.addObject("Sketcher::SketchObject", "Sketch013")
body.addObject(sketch14)
sketch14.AttachmentSupport = (doc.XZ_Plane, [""])
sketch14.MapMode = "FlatFace"
sketch14.AttachmentOffset = App.Placement(V(0, 0, -4), App.Rotation())
sketch14.addGeometry(Part.Circle(V(-60, -60, 0), V(0, 0, 1), 1.5), False)
sketch14.addConstraint([
    Sketcher.Constraint("Diameter", 0, Q("3 mm")),
    Sketcher.Constraint("DistanceX", 0, 3, -1, 1, Q("60 mm")),
    Sketcher.Constraint("DistanceY", 0, 3, -1, 1, Q("60 mm")),
])
pocket13 = doc.addObject("PartDesign::Pocket", "Pocket012")
body.addObject(pocket13)
pocket13.Profile = sketch14
pocket13.Length = 10
pocket13.Reversed = True

doc.recompute()
